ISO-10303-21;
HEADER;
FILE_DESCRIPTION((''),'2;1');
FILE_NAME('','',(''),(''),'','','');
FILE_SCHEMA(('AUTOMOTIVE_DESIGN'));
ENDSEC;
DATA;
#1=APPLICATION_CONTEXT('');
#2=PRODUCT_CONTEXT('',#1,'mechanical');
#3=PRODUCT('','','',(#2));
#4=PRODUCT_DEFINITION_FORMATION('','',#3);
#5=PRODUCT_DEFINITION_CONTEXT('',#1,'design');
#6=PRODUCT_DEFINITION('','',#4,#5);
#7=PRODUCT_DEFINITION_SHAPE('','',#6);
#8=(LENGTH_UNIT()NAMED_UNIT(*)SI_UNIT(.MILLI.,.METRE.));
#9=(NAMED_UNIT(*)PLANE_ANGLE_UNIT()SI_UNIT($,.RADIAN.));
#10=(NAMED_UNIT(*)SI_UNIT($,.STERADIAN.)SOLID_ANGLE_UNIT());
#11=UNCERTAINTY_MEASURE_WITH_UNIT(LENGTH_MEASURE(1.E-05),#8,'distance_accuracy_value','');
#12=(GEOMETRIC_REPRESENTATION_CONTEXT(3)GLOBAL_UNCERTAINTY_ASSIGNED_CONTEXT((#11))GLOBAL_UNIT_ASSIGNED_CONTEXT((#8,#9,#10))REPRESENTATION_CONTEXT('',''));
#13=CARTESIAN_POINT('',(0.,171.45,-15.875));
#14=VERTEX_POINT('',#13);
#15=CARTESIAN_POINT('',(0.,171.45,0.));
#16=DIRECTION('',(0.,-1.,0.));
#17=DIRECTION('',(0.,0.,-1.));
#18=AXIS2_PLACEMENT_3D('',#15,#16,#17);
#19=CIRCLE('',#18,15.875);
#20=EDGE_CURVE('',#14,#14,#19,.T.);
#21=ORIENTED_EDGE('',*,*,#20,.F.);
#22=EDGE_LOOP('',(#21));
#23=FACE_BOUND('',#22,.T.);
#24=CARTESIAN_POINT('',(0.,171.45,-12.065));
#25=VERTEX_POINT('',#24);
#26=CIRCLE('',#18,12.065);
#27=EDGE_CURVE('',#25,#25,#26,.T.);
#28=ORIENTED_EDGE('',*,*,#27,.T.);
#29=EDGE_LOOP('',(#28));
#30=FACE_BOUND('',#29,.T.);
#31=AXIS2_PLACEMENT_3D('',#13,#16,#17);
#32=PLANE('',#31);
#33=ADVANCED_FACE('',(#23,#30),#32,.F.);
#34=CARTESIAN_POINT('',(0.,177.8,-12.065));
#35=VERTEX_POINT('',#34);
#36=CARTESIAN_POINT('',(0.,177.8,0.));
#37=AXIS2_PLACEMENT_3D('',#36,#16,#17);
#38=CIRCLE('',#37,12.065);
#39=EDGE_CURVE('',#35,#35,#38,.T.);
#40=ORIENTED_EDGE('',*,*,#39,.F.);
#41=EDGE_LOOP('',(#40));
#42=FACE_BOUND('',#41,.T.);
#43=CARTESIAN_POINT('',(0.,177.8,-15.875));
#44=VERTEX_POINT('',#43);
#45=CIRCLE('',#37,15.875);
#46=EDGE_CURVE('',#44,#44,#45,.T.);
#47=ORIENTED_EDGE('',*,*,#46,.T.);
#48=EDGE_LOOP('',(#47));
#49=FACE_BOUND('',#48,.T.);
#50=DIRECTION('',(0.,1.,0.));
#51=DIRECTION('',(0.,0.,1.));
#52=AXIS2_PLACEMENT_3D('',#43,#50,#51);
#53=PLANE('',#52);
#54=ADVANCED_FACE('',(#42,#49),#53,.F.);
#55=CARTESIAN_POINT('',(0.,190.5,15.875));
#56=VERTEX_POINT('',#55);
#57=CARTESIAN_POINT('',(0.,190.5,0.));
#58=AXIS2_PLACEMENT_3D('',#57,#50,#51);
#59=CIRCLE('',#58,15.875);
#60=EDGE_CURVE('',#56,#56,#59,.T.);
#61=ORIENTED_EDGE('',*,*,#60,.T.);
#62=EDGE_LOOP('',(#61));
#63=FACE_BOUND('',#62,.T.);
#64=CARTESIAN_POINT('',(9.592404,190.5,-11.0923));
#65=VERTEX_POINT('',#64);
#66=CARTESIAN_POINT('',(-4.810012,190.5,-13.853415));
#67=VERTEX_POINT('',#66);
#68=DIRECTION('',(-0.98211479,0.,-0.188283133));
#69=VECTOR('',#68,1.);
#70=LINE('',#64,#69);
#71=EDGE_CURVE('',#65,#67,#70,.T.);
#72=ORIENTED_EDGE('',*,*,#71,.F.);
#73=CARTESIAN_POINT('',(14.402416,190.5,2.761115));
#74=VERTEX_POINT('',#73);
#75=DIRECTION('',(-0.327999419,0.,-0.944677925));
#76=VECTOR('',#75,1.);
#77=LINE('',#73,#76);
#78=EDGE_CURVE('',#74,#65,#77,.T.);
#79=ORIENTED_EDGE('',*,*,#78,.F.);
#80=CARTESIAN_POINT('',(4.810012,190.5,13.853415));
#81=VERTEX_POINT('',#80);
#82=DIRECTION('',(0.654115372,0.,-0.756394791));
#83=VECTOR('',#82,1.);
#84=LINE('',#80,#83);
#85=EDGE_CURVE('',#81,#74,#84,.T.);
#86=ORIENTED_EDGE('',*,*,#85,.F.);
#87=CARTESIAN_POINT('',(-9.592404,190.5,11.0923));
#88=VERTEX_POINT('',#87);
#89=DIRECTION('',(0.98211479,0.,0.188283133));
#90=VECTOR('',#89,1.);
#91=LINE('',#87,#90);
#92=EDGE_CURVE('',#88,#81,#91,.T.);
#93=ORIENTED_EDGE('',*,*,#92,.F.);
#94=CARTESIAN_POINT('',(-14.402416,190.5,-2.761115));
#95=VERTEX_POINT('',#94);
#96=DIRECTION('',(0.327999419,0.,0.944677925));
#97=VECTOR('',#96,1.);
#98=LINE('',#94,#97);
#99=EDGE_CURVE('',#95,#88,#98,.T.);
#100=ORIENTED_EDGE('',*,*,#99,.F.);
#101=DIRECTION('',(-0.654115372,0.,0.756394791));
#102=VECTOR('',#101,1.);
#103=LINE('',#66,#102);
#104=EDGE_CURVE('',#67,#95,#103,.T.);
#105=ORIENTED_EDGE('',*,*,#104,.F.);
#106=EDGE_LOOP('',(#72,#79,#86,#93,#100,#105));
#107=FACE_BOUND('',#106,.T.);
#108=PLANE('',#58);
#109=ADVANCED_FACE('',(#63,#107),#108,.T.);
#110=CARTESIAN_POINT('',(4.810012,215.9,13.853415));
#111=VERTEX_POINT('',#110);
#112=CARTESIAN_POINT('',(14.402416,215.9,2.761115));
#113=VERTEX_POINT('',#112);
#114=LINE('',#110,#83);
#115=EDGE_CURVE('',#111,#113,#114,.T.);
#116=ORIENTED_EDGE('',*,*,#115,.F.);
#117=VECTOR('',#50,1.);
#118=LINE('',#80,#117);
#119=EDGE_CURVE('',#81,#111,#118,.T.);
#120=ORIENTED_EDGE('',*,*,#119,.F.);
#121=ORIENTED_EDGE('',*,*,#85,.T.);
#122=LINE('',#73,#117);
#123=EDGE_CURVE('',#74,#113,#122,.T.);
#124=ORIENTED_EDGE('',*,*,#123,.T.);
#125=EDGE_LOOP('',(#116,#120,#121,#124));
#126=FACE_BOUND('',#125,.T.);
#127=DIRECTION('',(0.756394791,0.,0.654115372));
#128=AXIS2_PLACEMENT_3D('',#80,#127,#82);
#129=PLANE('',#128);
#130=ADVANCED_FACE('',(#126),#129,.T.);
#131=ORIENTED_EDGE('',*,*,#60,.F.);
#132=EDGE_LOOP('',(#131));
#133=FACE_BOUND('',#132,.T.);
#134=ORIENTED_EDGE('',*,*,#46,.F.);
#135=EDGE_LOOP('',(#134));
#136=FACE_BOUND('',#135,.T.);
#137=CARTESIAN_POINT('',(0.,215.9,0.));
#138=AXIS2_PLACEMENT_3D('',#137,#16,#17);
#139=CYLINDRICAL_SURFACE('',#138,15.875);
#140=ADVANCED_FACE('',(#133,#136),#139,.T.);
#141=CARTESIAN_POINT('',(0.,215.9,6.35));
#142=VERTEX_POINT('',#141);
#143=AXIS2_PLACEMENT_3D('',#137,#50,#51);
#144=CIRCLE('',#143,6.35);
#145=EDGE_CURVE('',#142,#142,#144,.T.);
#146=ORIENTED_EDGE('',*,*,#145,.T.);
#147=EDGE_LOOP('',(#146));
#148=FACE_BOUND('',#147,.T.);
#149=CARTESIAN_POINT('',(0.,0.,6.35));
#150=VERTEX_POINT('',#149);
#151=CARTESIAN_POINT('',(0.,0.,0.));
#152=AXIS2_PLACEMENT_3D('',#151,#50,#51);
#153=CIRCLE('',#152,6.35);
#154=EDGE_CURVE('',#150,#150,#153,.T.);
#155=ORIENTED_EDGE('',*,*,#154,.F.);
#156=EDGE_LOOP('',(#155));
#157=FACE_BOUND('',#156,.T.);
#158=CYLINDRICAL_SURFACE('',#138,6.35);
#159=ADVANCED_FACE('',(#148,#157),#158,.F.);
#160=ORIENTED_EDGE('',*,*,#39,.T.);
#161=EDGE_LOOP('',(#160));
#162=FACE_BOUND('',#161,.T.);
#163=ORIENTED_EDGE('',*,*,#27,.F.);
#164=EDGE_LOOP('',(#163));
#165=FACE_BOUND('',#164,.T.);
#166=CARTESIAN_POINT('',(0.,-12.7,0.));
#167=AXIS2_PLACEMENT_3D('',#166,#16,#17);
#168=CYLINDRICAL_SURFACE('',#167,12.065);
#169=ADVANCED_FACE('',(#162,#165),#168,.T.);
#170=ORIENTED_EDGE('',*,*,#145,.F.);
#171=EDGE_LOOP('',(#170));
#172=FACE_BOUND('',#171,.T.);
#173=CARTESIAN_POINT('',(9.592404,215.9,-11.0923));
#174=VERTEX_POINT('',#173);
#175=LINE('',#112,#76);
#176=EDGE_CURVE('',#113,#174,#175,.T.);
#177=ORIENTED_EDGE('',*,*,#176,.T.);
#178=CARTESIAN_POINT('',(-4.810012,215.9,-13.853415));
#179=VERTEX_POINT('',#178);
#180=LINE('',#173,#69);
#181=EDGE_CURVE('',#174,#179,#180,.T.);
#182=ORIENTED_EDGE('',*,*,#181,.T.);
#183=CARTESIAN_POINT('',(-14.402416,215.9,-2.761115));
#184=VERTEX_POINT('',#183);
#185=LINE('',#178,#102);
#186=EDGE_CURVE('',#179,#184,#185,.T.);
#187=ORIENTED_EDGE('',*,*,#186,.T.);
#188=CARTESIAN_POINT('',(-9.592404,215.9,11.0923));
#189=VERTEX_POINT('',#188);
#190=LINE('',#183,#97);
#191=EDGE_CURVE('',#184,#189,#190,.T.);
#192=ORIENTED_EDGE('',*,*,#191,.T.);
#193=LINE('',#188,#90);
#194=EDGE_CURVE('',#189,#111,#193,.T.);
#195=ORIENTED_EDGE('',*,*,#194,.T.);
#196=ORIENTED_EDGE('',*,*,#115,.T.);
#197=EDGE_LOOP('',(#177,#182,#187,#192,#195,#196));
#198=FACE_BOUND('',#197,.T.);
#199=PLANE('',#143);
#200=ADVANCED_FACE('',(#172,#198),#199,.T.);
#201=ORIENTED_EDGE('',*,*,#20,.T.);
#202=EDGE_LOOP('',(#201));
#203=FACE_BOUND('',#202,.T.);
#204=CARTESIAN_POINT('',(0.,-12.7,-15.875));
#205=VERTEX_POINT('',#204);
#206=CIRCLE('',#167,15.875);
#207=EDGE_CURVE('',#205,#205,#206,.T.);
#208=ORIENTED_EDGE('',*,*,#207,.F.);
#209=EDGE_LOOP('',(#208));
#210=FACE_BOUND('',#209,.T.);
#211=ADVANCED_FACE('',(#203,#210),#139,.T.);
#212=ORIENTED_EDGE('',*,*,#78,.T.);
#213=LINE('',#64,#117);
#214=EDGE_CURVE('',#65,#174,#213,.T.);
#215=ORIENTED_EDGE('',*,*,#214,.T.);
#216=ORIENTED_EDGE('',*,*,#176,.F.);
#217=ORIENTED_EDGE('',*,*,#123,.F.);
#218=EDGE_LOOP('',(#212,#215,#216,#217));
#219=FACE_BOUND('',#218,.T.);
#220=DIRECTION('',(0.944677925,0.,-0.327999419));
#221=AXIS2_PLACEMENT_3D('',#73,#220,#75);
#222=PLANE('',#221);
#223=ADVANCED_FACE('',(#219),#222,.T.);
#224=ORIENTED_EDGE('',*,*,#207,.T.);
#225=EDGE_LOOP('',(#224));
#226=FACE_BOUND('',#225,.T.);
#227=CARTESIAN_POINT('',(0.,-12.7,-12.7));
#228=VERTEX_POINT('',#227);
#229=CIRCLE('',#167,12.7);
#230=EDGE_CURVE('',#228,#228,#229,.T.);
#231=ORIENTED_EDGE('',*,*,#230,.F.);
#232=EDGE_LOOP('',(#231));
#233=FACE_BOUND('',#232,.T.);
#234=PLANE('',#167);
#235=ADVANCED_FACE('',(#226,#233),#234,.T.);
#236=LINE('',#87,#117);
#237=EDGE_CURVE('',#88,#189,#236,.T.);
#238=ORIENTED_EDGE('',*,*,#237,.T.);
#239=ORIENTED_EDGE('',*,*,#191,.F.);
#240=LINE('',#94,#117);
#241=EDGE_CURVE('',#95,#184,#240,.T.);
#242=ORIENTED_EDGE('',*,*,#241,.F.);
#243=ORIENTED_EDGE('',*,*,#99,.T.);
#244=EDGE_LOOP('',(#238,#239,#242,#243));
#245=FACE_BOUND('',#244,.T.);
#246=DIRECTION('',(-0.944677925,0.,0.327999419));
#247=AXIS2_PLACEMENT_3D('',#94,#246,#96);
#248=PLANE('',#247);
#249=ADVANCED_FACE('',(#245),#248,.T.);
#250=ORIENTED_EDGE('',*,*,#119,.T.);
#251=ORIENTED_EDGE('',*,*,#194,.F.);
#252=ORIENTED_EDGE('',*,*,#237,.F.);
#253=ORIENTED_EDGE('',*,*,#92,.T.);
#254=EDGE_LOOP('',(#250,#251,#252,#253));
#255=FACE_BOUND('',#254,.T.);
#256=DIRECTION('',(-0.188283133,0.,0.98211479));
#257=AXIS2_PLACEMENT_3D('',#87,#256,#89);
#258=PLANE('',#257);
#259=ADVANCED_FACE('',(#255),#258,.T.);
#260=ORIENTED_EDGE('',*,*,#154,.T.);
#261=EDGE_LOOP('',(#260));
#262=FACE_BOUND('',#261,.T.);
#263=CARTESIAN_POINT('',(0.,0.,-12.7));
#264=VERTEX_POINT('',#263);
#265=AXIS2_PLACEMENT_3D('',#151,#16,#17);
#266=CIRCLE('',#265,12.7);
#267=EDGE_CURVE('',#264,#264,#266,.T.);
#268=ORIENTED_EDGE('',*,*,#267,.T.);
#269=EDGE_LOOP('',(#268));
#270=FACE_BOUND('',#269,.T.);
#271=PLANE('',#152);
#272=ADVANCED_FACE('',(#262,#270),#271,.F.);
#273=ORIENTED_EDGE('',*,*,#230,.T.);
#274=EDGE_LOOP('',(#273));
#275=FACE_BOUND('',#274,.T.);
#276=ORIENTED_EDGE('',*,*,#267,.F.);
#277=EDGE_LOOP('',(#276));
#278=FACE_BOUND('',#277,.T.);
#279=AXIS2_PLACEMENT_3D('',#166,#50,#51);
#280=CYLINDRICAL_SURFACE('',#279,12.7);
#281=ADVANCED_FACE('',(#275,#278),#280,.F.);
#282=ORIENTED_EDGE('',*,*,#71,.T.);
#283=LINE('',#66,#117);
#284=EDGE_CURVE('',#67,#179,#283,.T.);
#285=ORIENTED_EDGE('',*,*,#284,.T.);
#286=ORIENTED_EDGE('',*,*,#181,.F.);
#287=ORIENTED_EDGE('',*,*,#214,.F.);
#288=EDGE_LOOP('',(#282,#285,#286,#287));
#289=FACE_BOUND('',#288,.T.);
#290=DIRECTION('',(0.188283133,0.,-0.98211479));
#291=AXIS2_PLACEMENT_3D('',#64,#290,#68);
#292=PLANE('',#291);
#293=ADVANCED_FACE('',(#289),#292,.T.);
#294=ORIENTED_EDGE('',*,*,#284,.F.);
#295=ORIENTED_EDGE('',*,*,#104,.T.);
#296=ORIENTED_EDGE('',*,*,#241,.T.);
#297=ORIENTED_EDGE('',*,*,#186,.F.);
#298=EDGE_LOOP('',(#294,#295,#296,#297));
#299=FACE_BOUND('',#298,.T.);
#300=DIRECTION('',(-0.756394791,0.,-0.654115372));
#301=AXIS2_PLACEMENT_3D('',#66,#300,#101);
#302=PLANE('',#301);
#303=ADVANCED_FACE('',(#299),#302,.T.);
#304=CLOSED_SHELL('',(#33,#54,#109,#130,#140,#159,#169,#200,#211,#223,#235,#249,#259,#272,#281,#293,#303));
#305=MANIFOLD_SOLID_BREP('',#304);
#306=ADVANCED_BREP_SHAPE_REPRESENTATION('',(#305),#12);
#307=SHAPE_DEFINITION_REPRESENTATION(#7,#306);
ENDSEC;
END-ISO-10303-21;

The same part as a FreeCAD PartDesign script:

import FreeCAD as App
import Part
import Sketcher
from FreeCAD import Vector
Q = App.Units.Quantity


def add_polygon(sketch, points):
    """Adds a closed chain of lines whose ends are joined by coincident constraints."""
    first, n = sketch.GeometryCount, len(points)
    for a, b in zip(points, points[1:] + points[:1]):
        sketch.addGeometry(Part.LineSegment(App.Vector(*a, 0), App.Vector(*b, 0)), False)
    for i in range(n):
        sketch.addConstraint(Sketcher.Constraint("Coincident", first + i, 2, first + (i + 1) % n, 1))

doc = App.newDocument("Part")
params = doc.addObject("Spreadsheet::Sheet", "Params")
for row, (alias, value) in enumerate([
    ("sketch1_diameter", "0.5 in"),
    ("sketch1_diameter2", "1.25 in"),
    ("pad1_length", "8.5 in"),
    ("sketch2_diameter", "1 in"),
    ("sketch2_diameter2", "1.25 in"),
    ("pad2_length", "0.5 in"),
    ("sketch3_width", "0.25 in"),
    ("sketch3_height", "0.15 in"),
    ("groove_angle", "360 deg"),
    ("sketch4_diameter", "1.25 in"),
    ("pocket1_length", "1 in"),
], start=1):
    params.set(f"A{row}", alias)
    params.set(f"B{row}", "=" + value)
    params.setAlias(f"B{row}", alias)

body = doc.addObject("PartDesign::Body", "Body")

# Sketch on XZ plane
sketch1 = body.newObject("Sketcher::SketchObject", "Sketch")
sketch1.AttachmentSupport = (doc.getObject("XZ_Plane"), [""])
sketch1.MapMode = "FlatFace"
sketch1.addGeometry([
    Part.Circle(Vector(0, 0, 0), Vector(0, 0, 1), 16),
    Part.Circle(Vector(0, 0, 0), Vector(0, 0, 1), 6),
], False)
sketch1.addConstraint([
    Sketcher.Constraint("Coincident", 0, 3, -1, 1),
    Sketcher.Constraint("Coincident", 1, 3, -1, 1),
    Sketcher.Constraint("Diameter", 1, Q("0.5 in")),
    Sketcher.Constraint("Diameter", 0, Q("1.25 in")),
])
sketch1.setExpression("Constraints[2]", "Params.sketch1_diameter")
sketch1.setExpression("Constraints[3]", "Params.sketch1_diameter2")
pad1 = body.newObject("PartDesign::Pad", "Pad")
pad1.Profile = sketch1
pad1.setExpression("Length", "Params.pad1_length")
pad1.Reversed = True

# Sketch on XZ plane
sketch2 = body.newObject("Sketcher::SketchObject", "Sketch001")
sketch2.AttachmentSupport = (doc.getObject("XZ_Plane"), [""])
sketch2.MapMode = "FlatFace"
sketch2.AttachmentOffset = App.Placement(Vector(0, 0, 0.5 * 25.4), App.Rotation())
sketch2.addGeometry([
    Part.Circle(Vector(0, 0, 0), Vector(0, 0, 1), 16),
    Part.Circle(Vector(0, 0, 0), Vector(0, 0, 1), 13),
], False)
sketch2.addConstraint([
    Sketcher.Constraint("Coincident", 0, 3, -1, 1),
    Sketcher.Constraint("Coincident", 1, 3, -1, 1),
    Sketcher.Constraint("Diameter", 1, Q("1 in")),
    Sketcher.Constraint("Diameter", 0, Q("1.25 in")),
])
sketch2.setExpression("Constraints[2]", "Params.sketch2_diameter")
sketch2.setExpression("Constraints[3]", "Params.sketch2_diameter2")
pad2 = body.newObject("PartDesign::Pad", "Pad001")
pad2.Profile = sketch2
pad2.setExpression("Length", "Params.pad2_length")
pad2.Reversed = True

# Sketch on YZ plane
sketch3 = body.newObject("Sketcher::SketchObject", "Sketch002")
sketch3.AttachmentSupport = (doc.getObject("YZ_Plane"), [""])
sketch3.MapMode = "FlatFace"
add_polygon(sketch3, [(177.8, -12.1), (171.4, -12.1), (171.4, -15.9), (177.8, -15.9)])  # lines 0-3
sketch3.addConstraint([
    Sketcher.Constraint("Horizontal", 0),
    Sketcher.Constraint("Vertical", 1),
    Sketcher.Constraint("Horizontal", 2),
    Sketcher.Constraint("Vertical", 3),
    Sketcher.Constraint("DistanceX", -1, 1, 2, 2, Q("7 in")),
    Sketcher.Constraint("DistanceX", 0, 2, 0, 1, Q("0.25 in")),
    Sketcher.Constraint("DistanceY", 1, 2, 1, 1, Q("0.15 in")),
    Sketcher.Constraint("DistanceY", 0, 2, -1, 1, Q("0.475 in")),
])
sketch3.setExpression("Constraints[9]", "Params.sketch3_width")
sketch3.setExpression("Constraints[10]", "Params.sketch3_height")
groove = body.newObject("PartDesign::Groove", "Groove")
groove.Profile = sketch3
groove.ReferenceAxis = (sketch3, ["H_Axis"])
groove.setExpression("Angle", "Params.groove_angle")

# Sketch on XZ plane
sketch4 = body.newObject("Sketcher::SketchObject", "Sketch003")
sketch4.AttachmentSupport = (doc.getObject("XZ_Plane"), [""])
sketch4.MapMode = "FlatFace"
sketch4.AttachmentOffset = App.Placement(Vector(0, 0, -7.5 * 25.4), App.Rotation())
sketch4.addGeometry(Part.Circle(Vector(0, 0, 0), Vector(0, 0, 1), 16), False)  # 0
add_polygon(sketch4, [(-5, -14), (10, -11), (14, 3), (5, 14), (-10, 11), (-14, -3)])  # lines 1-6
sketch4.addConstraint([
    Sketcher.Constraint("Coincident", 0, 3, -1, 1),
    Sketcher.Constraint("Symmetric", 1, 2, 4, 2, -1, 1),
    Sketcher.Constraint("Symmetric", 2, 2, 5, 2, -1, 1),
    Sketcher.Constraint("Symmetric", 3, 2, 6, 2, -1, 1),
    Sketcher.Constraint("Equal", 1, 2),
    Sketcher.Constraint("Equal", 2, 3),
    Sketcher.Constraint("Diameter", 0, Q("1.25 in")),
    Sketcher.Constraint("DistanceY", 1, 2, -1, 1, 11.0923),
    Sketcher.Constraint("DistanceY", 2, 2, 3, 2, 11.0923),
    Sketcher.Constraint("DistanceX", 3, 2, 1, 2, 4.782392),
    Sketcher.Constraint("DistanceX", 4, 2, 2, 2, 23.994819),
])
sketch4.setExpression("Constraints[12]", "Params.sketch4_diameter")
pocket1 = body.newObject("PartDesign::Pocket", "Pocket")
pocket1.Profile = sketch4
pocket1.setExpression("Length", "Params.pocket1_length")

doc.recompute()
